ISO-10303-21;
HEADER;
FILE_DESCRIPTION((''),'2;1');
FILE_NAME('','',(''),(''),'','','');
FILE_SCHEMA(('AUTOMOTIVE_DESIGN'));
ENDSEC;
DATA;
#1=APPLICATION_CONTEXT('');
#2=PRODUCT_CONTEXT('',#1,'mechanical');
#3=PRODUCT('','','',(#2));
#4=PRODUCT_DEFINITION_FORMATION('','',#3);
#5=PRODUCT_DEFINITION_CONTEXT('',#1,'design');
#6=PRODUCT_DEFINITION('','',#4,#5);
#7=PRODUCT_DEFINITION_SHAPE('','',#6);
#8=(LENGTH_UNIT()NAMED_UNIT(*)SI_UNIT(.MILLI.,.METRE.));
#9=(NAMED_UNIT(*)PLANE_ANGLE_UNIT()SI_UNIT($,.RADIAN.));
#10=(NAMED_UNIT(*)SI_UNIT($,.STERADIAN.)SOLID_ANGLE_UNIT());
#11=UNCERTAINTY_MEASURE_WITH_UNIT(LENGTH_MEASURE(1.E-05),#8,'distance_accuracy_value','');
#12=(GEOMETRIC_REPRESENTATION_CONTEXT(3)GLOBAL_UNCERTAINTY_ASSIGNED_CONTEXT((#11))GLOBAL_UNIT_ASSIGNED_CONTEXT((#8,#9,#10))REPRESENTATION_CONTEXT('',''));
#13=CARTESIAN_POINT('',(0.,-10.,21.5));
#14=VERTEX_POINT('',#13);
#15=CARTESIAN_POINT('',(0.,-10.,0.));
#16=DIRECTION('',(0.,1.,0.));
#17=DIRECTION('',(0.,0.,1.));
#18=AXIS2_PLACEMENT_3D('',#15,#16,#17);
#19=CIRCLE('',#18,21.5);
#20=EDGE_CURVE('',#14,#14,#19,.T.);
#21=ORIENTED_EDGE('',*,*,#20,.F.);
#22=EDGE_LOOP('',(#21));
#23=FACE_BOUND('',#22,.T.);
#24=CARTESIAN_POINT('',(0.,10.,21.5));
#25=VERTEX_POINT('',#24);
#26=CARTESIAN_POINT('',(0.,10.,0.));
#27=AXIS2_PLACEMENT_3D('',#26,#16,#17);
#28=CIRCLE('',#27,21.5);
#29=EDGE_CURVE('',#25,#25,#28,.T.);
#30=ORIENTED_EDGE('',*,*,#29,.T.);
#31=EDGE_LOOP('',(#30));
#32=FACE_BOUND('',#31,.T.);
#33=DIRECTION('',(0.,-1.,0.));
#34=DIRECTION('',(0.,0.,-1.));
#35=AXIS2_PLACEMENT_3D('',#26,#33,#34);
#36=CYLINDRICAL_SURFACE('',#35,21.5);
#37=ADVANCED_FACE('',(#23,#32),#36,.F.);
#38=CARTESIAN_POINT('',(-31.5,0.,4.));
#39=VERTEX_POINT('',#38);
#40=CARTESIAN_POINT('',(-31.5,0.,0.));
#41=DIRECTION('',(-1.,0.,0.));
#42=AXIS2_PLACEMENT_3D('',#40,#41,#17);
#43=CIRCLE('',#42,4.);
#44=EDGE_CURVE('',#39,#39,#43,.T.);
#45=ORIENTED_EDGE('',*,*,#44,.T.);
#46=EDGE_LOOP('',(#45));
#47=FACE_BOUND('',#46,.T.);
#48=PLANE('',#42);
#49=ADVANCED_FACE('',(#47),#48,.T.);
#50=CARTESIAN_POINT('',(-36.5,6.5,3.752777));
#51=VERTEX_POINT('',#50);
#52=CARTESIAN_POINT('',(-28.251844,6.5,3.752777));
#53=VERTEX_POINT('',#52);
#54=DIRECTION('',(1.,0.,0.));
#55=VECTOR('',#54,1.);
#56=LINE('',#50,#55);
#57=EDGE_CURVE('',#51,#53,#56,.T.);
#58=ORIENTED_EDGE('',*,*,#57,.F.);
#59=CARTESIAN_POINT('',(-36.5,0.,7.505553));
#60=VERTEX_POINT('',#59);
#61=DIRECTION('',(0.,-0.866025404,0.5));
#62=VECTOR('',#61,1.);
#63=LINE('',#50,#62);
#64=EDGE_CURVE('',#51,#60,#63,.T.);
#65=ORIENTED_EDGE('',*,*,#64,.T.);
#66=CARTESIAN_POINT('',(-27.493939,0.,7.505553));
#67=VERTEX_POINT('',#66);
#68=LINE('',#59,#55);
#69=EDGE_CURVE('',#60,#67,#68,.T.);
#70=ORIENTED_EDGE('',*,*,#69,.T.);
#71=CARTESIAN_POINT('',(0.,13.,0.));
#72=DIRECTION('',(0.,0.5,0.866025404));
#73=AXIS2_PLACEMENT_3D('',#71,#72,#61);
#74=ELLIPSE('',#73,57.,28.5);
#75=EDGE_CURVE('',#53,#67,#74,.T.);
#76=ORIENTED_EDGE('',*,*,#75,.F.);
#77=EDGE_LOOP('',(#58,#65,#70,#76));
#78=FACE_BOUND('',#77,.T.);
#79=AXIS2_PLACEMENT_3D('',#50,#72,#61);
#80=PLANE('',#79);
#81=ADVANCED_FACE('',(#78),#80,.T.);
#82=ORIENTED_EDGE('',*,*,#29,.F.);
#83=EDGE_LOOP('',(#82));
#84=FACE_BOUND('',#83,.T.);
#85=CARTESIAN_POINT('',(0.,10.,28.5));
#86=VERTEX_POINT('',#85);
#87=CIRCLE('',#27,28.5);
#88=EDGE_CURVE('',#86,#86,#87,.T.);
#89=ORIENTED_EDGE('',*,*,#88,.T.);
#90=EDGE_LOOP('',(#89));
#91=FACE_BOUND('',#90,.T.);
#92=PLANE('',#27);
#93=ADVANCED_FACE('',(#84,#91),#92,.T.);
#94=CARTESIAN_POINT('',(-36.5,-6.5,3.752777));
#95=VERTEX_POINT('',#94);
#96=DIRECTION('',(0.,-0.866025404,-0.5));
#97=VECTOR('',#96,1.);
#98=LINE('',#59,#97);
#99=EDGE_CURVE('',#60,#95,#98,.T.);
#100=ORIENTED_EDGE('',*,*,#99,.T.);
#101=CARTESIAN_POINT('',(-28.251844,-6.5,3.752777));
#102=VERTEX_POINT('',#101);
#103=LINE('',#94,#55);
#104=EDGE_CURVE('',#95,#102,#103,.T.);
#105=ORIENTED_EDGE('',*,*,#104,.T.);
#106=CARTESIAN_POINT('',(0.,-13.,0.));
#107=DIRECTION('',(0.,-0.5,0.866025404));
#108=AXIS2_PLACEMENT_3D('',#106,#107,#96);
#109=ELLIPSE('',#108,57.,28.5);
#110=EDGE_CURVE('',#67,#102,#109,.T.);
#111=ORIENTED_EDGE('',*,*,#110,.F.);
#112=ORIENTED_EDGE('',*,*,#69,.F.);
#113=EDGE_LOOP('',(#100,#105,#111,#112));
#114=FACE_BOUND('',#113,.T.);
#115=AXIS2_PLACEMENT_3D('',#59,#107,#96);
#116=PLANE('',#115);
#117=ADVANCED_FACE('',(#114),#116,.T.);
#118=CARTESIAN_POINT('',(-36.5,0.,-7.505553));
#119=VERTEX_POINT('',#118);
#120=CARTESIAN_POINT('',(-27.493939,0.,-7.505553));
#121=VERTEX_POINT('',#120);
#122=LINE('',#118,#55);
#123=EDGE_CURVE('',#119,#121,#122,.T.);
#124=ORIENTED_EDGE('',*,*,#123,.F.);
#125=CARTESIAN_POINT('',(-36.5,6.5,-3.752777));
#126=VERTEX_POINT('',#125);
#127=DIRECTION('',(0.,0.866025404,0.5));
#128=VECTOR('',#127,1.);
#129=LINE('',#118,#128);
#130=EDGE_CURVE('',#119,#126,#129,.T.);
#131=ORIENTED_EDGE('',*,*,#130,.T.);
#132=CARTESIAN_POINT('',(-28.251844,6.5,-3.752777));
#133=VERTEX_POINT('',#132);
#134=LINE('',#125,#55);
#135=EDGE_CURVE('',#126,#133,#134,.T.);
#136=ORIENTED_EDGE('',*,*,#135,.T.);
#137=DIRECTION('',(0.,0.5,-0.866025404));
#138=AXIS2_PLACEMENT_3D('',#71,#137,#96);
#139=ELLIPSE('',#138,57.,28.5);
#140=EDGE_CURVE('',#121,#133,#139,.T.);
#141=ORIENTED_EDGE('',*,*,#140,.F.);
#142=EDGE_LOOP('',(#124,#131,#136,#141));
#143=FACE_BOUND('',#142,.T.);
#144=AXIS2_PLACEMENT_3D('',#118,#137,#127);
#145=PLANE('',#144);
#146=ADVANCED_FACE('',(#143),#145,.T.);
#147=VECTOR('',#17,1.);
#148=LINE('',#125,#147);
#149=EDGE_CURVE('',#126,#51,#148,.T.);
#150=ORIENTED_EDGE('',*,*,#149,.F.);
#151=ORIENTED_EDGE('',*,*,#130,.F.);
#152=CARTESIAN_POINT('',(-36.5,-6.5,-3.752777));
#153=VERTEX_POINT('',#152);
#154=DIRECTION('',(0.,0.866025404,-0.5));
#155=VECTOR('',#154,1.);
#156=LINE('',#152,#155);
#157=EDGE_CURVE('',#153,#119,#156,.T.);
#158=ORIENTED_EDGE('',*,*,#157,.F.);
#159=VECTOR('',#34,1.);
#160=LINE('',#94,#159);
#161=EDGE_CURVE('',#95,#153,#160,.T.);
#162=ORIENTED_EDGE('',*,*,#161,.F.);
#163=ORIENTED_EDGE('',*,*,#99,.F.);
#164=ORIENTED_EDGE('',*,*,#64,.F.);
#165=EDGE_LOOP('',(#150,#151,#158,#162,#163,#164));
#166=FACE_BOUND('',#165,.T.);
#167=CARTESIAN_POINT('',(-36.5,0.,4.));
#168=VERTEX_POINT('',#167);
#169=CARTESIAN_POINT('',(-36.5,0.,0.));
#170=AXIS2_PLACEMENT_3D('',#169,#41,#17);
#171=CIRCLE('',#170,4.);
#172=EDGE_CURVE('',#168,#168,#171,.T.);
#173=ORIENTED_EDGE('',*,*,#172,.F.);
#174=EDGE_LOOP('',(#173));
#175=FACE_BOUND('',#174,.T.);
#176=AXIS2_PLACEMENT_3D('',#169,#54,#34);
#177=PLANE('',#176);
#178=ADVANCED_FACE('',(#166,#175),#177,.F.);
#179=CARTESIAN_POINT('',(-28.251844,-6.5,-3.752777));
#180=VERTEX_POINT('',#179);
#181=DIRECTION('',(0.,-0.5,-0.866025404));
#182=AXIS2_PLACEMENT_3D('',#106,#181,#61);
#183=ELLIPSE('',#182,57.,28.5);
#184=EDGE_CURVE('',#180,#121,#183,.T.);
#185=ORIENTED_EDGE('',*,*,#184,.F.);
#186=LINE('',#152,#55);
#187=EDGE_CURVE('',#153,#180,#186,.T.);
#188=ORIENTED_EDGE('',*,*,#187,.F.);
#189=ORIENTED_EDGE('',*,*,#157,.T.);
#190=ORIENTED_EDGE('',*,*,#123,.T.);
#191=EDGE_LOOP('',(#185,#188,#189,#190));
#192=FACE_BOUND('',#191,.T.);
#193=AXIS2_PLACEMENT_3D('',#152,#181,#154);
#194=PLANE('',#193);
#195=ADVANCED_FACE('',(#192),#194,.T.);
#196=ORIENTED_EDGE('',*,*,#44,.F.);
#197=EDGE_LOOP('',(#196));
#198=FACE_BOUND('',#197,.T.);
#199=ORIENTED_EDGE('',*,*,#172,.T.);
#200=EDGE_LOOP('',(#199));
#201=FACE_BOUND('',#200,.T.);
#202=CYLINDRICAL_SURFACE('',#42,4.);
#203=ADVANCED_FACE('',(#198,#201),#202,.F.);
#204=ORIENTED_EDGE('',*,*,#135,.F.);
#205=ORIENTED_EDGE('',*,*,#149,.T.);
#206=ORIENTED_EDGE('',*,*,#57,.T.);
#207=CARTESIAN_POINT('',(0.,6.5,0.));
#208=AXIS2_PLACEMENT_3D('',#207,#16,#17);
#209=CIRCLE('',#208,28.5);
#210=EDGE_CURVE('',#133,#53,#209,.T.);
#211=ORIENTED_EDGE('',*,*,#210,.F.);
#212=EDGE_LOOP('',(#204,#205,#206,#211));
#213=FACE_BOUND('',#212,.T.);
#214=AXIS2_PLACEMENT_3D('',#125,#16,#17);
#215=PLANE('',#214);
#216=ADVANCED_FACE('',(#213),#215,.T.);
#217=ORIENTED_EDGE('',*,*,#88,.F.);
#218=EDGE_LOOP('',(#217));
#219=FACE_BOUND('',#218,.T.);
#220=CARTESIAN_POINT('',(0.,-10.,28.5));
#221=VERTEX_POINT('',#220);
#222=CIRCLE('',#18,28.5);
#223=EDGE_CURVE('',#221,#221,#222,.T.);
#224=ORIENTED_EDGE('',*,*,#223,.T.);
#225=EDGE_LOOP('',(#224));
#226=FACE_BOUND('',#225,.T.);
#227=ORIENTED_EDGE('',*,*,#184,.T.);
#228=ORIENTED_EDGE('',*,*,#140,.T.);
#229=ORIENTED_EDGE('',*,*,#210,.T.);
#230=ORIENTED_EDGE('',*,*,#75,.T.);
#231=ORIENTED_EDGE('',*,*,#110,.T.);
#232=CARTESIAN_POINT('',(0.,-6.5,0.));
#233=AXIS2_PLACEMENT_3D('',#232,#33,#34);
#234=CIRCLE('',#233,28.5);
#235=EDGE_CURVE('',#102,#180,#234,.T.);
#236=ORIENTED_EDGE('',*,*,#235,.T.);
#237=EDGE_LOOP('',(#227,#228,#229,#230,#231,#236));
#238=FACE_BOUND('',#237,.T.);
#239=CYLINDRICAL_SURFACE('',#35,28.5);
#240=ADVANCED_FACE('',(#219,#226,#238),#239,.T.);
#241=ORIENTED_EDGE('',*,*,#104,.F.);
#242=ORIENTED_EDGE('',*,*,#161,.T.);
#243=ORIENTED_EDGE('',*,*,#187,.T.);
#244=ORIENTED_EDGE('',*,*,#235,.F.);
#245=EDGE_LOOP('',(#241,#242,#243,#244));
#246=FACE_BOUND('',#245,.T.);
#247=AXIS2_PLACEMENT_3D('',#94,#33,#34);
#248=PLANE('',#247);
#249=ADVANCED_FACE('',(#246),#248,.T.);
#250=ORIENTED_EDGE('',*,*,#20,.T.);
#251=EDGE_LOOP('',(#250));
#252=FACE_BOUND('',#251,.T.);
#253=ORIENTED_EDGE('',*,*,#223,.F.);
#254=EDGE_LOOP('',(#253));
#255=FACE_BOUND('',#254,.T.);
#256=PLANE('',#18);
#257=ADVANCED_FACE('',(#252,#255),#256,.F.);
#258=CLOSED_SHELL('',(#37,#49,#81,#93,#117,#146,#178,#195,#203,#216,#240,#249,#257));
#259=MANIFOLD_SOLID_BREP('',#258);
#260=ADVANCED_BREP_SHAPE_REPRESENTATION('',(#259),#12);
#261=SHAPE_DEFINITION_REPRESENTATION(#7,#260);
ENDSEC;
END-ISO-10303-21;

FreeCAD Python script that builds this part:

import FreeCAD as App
import Part
import Sketcher

V = App.Vector
Q = App.Units.Quantity

doc = App.newDocument("Part")
body = doc.addObject("PartDesign::Body", "Body")

sketch1 = body.newObject("Sketcher::SketchObject", "Sketch")
sketch1.AttachmentSupport = (doc.getObject("XZ_Plane"), [""])
sketch1.MapMode = "FlatFace"
sketch1.addGeometry([
    Part.Circle(V(0, 0, 0), V(0, 0, 1), 28.5),
    Part.Circle(V(0, 0, 0), V(0, 0, 1), 21.5),
], False)
sketch1.addConstraint([
    Sketcher.Constraint("Coincident", 0, 3, -1, 1),
    Sketcher.Constraint("Coincident", 1, 3, -1, 1),
    Sketcher.Constraint("Diameter", 0, Q("57 mm")),
    Sketcher.Constraint("Diameter", 1, Q("43 mm")),
])
pad1 = body.newObject("PartDesign::Pad", "Pad")
pad1.Profile = sketch1
pad1.Length = 20
pad1.Midplane = True

sketch2 = body.newObject("Sketcher::SketchObject", "Sketch001")
sketch2.AttachmentSupport = (doc.getObject("YZ_Plane"), [""])
sketch2.MapMode = "FlatFace"
sketch2.AttachmentOffset = App.Placement(V(0, 0, -25), App.Rotation())
sketch2.addGeometry([
    Part.LineSegment(V(0, -7.505553, 0), V(6.5, -3.752777, 0)),
    Part.LineSegment(V(6.5, -3.752777, 0), V(6.5, 3.752777, 0)),
    Part.LineSegment(V(6.5, 3.752777, 0), V(0, 7.505553, 0)),
    Part.LineSegment(V(0, 7.505553, 0), V(-6.5, 3.752777, 0)),
    Part.LineSegment(V(-6.5, 3.752777, 0), V(-6.5, -3.752777, 0)),
    Part.LineSegment(V(-6.5, -3.752777, 0), V(0, -7.505553, 0)),
], False)
sketch2.addConstraint([
    Sketcher.Constraint("Coincident", 0, 2, 1, 1),
    Sketcher.Constraint("Coincident", 1, 2, 2, 1),
    Sketcher.Constraint("Coincident", 2, 2, 3, 1),
    Sketcher.Constraint("Coincident", 3, 2, 4, 1),
    Sketcher.Constraint("Coincident", 4, 2, 5, 1),
    Sketcher.Constraint("Coincident", 5, 2, 0, 1),
    Sketcher.Constraint("Vertical", 1),
    Sketcher.Constraint("Vertical", 4),
    Sketcher.Constraint("Symmetric", 0, 2, 3, 2, -1, 1),
    Sketcher.Constraint("Symmetric", 2, 2, 5, 2, -1, 1),
    Sketcher.Constraint("PointOnObject", 2, 2, -2),
    Sketcher.Constraint("Parallel", 2, 5),
    Sketcher.Constraint("Horizontal", 1, 2, 3, 2),
    Sketcher.Constraint("Angle", 0, Q("30 deg")),
    Sketcher.Constraint("DistanceX", 3, 2, 1, 2, Q("13 mm")),
    Sketcher.Constraint("DistanceY", 1, 1, 1, 2, Q("7.505554 mm")),
])
pad2 = body.newObject("PartDesign::Pad", "Pad001")
pad2.Profile = sketch2
pad2.Length = 11.5
pad2.Reversed = True

sketch3 = body.newObject("Sketcher::SketchObject", "Sketch002")
sketch3.AttachmentSupport = (doc.getObject("YZ_Plane"), [""])
sketch3.MapMode = "FlatFace"
sketch3.AttachmentOffset = App.Placement(V(0, 0, -36.5), App.Rotation())
sketch3.addGeometry(Part.Circle(V(0, 0, 0), V(0, 0, 1), 4), False)
sketch3.addConstraint([
    Sketcher.Constraint("Coincident", 0, 3, -1, 1),
    Sketcher.Constraint("Diameter", 0, Q("8 mm")),
])
pocket1 = body.newObject("PartDesign::Pocket", "Pocket")
pocket1.Profile = sketch3
pocket1.Length = 5
pocket1.Reversed = True

doc.recompute()
